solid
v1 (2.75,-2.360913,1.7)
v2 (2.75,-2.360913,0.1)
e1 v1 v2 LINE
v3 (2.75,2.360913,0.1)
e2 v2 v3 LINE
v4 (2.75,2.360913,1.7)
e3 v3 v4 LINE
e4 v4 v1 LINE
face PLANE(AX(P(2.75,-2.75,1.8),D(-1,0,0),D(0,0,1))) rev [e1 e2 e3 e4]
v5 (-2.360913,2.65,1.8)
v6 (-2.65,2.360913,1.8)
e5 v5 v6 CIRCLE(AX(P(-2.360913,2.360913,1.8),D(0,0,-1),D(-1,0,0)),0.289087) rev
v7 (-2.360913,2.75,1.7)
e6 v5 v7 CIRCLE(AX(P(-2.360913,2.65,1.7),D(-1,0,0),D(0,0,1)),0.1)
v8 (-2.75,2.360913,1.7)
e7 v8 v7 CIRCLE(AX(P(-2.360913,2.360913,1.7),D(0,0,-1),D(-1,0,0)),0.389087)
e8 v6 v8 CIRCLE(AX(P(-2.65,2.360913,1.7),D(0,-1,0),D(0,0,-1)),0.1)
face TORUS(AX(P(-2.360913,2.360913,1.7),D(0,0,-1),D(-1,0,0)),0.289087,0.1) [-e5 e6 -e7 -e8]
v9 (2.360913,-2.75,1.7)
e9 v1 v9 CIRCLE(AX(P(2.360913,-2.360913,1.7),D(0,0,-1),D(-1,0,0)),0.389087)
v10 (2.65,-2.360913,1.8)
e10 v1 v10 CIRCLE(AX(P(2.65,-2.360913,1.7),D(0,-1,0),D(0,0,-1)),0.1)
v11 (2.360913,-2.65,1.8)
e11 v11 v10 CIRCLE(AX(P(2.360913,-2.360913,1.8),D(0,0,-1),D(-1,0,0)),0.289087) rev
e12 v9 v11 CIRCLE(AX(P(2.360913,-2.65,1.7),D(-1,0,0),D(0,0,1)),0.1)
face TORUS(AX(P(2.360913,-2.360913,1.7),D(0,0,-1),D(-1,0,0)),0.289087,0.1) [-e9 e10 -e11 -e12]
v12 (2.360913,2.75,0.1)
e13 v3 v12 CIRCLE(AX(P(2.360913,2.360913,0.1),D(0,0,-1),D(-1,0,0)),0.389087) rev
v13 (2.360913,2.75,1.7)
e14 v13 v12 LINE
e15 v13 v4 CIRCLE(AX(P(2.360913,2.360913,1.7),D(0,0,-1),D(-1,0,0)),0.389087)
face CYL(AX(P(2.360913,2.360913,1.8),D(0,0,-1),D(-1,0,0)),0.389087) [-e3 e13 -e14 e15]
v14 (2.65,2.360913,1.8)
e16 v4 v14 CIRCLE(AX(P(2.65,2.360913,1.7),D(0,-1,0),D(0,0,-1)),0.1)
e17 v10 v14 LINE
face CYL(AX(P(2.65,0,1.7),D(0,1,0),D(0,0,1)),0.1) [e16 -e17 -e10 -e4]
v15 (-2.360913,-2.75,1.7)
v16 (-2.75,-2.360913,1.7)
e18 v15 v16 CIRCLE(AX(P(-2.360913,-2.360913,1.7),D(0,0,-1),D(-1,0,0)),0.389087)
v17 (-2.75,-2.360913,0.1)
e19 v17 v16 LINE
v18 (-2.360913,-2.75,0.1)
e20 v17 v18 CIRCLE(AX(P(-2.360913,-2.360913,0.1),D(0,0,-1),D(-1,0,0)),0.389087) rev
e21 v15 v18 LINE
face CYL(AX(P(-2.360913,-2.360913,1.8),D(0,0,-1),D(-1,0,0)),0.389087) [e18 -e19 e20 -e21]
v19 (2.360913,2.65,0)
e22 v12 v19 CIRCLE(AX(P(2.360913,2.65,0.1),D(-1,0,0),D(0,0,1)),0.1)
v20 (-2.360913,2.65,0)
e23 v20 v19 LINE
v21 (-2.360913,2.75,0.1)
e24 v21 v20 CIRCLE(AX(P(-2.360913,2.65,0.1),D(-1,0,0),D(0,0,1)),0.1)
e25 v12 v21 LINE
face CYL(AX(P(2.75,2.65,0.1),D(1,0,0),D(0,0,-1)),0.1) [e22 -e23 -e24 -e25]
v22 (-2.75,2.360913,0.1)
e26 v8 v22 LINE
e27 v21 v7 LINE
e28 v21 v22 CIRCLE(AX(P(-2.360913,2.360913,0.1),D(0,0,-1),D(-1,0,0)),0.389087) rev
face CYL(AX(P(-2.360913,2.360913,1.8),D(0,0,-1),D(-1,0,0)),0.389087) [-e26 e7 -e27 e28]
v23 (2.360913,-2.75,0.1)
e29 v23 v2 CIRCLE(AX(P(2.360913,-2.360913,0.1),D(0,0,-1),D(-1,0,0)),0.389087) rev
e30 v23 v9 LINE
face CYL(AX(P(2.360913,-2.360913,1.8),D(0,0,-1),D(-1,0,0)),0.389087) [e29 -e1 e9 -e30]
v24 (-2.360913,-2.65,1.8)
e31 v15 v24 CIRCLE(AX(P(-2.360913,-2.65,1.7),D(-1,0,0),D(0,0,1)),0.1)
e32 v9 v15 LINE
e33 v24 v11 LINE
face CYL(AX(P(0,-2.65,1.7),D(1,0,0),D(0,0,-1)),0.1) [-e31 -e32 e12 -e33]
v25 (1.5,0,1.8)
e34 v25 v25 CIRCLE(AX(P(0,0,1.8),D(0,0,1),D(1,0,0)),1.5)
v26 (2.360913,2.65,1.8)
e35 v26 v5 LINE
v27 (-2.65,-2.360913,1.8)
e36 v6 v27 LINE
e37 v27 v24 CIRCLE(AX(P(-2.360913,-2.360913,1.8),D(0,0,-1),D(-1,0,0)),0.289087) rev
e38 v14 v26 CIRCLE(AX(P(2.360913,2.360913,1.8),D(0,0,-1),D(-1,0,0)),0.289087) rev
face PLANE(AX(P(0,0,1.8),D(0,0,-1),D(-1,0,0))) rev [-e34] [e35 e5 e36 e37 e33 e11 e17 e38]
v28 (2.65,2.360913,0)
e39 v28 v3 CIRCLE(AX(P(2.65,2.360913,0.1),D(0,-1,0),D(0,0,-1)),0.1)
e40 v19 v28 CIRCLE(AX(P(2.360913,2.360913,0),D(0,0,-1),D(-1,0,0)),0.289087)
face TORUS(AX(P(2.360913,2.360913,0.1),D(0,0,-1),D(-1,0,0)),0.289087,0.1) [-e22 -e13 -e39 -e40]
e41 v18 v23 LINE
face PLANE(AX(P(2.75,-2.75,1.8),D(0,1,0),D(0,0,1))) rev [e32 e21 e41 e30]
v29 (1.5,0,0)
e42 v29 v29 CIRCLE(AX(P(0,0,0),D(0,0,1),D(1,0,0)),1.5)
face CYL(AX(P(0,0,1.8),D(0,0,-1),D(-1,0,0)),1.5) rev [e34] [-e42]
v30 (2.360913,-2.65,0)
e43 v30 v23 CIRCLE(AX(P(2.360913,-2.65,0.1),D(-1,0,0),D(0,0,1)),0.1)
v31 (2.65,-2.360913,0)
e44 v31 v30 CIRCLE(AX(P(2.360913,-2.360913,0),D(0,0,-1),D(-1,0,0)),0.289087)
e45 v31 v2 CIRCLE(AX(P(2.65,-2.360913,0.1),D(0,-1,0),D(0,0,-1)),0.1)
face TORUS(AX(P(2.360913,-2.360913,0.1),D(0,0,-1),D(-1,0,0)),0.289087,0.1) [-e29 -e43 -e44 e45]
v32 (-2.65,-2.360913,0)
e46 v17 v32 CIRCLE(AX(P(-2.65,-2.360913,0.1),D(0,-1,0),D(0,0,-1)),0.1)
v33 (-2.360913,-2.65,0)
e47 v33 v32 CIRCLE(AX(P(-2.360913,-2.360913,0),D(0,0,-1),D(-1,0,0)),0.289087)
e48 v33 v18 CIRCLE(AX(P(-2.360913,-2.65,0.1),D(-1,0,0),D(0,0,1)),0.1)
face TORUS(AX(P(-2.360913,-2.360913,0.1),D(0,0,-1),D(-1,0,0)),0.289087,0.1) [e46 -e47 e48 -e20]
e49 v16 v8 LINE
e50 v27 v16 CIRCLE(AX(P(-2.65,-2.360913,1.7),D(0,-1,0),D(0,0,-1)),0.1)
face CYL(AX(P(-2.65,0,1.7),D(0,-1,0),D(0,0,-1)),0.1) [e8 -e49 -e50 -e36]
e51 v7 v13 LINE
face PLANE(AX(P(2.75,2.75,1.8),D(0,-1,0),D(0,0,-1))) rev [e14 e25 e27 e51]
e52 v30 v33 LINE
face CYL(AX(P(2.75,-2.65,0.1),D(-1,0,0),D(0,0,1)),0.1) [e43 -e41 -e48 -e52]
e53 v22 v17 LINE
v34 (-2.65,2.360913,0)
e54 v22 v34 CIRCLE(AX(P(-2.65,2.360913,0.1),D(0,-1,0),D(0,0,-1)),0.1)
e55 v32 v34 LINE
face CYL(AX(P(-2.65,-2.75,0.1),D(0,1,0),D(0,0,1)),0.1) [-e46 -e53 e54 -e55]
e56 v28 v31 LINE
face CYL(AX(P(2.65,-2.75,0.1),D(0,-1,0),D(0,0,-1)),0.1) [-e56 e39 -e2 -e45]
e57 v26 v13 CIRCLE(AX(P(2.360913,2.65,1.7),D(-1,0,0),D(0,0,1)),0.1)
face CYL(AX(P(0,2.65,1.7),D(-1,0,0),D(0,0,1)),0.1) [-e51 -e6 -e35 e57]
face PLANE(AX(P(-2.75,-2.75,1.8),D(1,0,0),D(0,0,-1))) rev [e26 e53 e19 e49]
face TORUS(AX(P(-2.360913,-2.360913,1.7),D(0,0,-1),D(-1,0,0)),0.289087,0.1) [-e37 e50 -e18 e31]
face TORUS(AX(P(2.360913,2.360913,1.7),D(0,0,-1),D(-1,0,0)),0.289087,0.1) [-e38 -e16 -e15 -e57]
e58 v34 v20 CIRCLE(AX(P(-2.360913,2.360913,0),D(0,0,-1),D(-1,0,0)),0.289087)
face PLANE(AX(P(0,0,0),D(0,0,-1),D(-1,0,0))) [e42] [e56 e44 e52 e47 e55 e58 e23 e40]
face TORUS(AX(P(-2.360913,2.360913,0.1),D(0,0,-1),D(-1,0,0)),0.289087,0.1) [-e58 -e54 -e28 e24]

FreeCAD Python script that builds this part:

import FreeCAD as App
import Part
import Sketcher

V = App.Vector


def edges_at(feature, points):
    """Names of the edges that pass closest to the given points."""
    edges = feature.Shape.Edges
    near = lambda p: min(range(len(edges)), key=lambda i: edges[i].distToShape(Part.Vertex(*p))[0])
    return sorted({f"Edge{near(p) + 1}" for p in points})


def add_polygon(sketch, points):
    """Adds a closed chain of lines whose ends are joined by coincident constraints."""
    first, n = sketch.GeometryCount, len(points)
    for a, b in zip(points, points[1:] + points[:1]):
        sketch.addGeometry(Part.LineSegment(App.Vector(*a, 0), App.Vector(*b, 0)), False)
    for i in range(n):
        sketch.addConstraint(Sketcher.Constraint("Coincident", first + i, 2, first + (i + 1) % n, 1))

doc = App.newDocument("Part")
body = doc.addObject("PartDesign::Body", "Body")

sketch1 = body.newObject("Sketcher::SketchObject", "Sketch")
sketch1.AttachmentSupport = (doc.getObject("XY_Plane"), [""])
sketch1.MapMode = "FlatFace"
add_polygon(sketch1, [(-2.8, -2.8), (2.8, -2.8), (2.8, 2.8), (-2.8, 2.8)])
sketch1.addGeometry(Part.Circle(V(0, 0, 0), V(0, 0, 1), 1.5), False)
sketch1.addConstraint(Sketcher.Constraint("Horizontal", 0))
sketch1.addConstraint(Sketcher.Constraint("Vertical", 1))
sketch1.addConstraint(Sketcher.Constraint("Horizontal", 2))
sketch1.addConstraint(Sketcher.Constraint("Vertical", 3))
sketch1.addConstraint(Sketcher.Constraint("Coincident", 4, 3, -1, 1))
sketch1.addConstraint(Sketcher.Constraint("Symmetric", 0, 2, 2, 2, -1, 1))
sketch1.addConstraint(Sketcher.Constraint("Equal", 2, 1))
sketch1.addConstraint(Sketcher.Constraint("Diameter", 4, 3.0))
sketch1.addConstraint(Sketcher.Constraint("DistanceX", 0, 1, 0, 2, 5.5))
pad1 = body.newObject("PartDesign::Pad", "Pad")
pad1.Profile = sketch1
pad1.Length = 1.8
doc.recompute()

fillet = body.newObject("PartDesign::Fillet", "Fillet")
fillet.Base = (pad1, edges_at(pad1, [
    (2.75, 2.75, 0.9),
    (2.75, -2.75, 0.9),
    (-2.75, -2.75, 0.9),
    (-2.75, 2.75, 0.9),
]))
fillet.Radius = 0.389087
doc.recompute()

fillet2 = body.newObject("PartDesign::Fillet", "Fillet001")
fillet2.Base = (fillet, edges_at(fillet, [
    (0, -2.75, 0),
    (0, -2.75, 1.8),
    (0, 2.75, 0),
    (2.75, 0, 0),
    (-2.75, 0, 0),
    (2.636, -2.636, 0),
    (2.636, 2.636, 0),
    (-2.636, 2.636, 0),
    (-2.636, -2.636, 0),
    (-2.75, 0, 1.8),
    (0, 2.75, 1.8),
    (2.75, 0, 1.8),
    (2.636, -2.636, 1.8),
    (2.636, 2.636, 1.8),
    (-2.636, 2.636, 1.8),
    (-2.636, -2.636, 1.8),
]))
fillet2.Radius = 0.1

doc.recompute()
